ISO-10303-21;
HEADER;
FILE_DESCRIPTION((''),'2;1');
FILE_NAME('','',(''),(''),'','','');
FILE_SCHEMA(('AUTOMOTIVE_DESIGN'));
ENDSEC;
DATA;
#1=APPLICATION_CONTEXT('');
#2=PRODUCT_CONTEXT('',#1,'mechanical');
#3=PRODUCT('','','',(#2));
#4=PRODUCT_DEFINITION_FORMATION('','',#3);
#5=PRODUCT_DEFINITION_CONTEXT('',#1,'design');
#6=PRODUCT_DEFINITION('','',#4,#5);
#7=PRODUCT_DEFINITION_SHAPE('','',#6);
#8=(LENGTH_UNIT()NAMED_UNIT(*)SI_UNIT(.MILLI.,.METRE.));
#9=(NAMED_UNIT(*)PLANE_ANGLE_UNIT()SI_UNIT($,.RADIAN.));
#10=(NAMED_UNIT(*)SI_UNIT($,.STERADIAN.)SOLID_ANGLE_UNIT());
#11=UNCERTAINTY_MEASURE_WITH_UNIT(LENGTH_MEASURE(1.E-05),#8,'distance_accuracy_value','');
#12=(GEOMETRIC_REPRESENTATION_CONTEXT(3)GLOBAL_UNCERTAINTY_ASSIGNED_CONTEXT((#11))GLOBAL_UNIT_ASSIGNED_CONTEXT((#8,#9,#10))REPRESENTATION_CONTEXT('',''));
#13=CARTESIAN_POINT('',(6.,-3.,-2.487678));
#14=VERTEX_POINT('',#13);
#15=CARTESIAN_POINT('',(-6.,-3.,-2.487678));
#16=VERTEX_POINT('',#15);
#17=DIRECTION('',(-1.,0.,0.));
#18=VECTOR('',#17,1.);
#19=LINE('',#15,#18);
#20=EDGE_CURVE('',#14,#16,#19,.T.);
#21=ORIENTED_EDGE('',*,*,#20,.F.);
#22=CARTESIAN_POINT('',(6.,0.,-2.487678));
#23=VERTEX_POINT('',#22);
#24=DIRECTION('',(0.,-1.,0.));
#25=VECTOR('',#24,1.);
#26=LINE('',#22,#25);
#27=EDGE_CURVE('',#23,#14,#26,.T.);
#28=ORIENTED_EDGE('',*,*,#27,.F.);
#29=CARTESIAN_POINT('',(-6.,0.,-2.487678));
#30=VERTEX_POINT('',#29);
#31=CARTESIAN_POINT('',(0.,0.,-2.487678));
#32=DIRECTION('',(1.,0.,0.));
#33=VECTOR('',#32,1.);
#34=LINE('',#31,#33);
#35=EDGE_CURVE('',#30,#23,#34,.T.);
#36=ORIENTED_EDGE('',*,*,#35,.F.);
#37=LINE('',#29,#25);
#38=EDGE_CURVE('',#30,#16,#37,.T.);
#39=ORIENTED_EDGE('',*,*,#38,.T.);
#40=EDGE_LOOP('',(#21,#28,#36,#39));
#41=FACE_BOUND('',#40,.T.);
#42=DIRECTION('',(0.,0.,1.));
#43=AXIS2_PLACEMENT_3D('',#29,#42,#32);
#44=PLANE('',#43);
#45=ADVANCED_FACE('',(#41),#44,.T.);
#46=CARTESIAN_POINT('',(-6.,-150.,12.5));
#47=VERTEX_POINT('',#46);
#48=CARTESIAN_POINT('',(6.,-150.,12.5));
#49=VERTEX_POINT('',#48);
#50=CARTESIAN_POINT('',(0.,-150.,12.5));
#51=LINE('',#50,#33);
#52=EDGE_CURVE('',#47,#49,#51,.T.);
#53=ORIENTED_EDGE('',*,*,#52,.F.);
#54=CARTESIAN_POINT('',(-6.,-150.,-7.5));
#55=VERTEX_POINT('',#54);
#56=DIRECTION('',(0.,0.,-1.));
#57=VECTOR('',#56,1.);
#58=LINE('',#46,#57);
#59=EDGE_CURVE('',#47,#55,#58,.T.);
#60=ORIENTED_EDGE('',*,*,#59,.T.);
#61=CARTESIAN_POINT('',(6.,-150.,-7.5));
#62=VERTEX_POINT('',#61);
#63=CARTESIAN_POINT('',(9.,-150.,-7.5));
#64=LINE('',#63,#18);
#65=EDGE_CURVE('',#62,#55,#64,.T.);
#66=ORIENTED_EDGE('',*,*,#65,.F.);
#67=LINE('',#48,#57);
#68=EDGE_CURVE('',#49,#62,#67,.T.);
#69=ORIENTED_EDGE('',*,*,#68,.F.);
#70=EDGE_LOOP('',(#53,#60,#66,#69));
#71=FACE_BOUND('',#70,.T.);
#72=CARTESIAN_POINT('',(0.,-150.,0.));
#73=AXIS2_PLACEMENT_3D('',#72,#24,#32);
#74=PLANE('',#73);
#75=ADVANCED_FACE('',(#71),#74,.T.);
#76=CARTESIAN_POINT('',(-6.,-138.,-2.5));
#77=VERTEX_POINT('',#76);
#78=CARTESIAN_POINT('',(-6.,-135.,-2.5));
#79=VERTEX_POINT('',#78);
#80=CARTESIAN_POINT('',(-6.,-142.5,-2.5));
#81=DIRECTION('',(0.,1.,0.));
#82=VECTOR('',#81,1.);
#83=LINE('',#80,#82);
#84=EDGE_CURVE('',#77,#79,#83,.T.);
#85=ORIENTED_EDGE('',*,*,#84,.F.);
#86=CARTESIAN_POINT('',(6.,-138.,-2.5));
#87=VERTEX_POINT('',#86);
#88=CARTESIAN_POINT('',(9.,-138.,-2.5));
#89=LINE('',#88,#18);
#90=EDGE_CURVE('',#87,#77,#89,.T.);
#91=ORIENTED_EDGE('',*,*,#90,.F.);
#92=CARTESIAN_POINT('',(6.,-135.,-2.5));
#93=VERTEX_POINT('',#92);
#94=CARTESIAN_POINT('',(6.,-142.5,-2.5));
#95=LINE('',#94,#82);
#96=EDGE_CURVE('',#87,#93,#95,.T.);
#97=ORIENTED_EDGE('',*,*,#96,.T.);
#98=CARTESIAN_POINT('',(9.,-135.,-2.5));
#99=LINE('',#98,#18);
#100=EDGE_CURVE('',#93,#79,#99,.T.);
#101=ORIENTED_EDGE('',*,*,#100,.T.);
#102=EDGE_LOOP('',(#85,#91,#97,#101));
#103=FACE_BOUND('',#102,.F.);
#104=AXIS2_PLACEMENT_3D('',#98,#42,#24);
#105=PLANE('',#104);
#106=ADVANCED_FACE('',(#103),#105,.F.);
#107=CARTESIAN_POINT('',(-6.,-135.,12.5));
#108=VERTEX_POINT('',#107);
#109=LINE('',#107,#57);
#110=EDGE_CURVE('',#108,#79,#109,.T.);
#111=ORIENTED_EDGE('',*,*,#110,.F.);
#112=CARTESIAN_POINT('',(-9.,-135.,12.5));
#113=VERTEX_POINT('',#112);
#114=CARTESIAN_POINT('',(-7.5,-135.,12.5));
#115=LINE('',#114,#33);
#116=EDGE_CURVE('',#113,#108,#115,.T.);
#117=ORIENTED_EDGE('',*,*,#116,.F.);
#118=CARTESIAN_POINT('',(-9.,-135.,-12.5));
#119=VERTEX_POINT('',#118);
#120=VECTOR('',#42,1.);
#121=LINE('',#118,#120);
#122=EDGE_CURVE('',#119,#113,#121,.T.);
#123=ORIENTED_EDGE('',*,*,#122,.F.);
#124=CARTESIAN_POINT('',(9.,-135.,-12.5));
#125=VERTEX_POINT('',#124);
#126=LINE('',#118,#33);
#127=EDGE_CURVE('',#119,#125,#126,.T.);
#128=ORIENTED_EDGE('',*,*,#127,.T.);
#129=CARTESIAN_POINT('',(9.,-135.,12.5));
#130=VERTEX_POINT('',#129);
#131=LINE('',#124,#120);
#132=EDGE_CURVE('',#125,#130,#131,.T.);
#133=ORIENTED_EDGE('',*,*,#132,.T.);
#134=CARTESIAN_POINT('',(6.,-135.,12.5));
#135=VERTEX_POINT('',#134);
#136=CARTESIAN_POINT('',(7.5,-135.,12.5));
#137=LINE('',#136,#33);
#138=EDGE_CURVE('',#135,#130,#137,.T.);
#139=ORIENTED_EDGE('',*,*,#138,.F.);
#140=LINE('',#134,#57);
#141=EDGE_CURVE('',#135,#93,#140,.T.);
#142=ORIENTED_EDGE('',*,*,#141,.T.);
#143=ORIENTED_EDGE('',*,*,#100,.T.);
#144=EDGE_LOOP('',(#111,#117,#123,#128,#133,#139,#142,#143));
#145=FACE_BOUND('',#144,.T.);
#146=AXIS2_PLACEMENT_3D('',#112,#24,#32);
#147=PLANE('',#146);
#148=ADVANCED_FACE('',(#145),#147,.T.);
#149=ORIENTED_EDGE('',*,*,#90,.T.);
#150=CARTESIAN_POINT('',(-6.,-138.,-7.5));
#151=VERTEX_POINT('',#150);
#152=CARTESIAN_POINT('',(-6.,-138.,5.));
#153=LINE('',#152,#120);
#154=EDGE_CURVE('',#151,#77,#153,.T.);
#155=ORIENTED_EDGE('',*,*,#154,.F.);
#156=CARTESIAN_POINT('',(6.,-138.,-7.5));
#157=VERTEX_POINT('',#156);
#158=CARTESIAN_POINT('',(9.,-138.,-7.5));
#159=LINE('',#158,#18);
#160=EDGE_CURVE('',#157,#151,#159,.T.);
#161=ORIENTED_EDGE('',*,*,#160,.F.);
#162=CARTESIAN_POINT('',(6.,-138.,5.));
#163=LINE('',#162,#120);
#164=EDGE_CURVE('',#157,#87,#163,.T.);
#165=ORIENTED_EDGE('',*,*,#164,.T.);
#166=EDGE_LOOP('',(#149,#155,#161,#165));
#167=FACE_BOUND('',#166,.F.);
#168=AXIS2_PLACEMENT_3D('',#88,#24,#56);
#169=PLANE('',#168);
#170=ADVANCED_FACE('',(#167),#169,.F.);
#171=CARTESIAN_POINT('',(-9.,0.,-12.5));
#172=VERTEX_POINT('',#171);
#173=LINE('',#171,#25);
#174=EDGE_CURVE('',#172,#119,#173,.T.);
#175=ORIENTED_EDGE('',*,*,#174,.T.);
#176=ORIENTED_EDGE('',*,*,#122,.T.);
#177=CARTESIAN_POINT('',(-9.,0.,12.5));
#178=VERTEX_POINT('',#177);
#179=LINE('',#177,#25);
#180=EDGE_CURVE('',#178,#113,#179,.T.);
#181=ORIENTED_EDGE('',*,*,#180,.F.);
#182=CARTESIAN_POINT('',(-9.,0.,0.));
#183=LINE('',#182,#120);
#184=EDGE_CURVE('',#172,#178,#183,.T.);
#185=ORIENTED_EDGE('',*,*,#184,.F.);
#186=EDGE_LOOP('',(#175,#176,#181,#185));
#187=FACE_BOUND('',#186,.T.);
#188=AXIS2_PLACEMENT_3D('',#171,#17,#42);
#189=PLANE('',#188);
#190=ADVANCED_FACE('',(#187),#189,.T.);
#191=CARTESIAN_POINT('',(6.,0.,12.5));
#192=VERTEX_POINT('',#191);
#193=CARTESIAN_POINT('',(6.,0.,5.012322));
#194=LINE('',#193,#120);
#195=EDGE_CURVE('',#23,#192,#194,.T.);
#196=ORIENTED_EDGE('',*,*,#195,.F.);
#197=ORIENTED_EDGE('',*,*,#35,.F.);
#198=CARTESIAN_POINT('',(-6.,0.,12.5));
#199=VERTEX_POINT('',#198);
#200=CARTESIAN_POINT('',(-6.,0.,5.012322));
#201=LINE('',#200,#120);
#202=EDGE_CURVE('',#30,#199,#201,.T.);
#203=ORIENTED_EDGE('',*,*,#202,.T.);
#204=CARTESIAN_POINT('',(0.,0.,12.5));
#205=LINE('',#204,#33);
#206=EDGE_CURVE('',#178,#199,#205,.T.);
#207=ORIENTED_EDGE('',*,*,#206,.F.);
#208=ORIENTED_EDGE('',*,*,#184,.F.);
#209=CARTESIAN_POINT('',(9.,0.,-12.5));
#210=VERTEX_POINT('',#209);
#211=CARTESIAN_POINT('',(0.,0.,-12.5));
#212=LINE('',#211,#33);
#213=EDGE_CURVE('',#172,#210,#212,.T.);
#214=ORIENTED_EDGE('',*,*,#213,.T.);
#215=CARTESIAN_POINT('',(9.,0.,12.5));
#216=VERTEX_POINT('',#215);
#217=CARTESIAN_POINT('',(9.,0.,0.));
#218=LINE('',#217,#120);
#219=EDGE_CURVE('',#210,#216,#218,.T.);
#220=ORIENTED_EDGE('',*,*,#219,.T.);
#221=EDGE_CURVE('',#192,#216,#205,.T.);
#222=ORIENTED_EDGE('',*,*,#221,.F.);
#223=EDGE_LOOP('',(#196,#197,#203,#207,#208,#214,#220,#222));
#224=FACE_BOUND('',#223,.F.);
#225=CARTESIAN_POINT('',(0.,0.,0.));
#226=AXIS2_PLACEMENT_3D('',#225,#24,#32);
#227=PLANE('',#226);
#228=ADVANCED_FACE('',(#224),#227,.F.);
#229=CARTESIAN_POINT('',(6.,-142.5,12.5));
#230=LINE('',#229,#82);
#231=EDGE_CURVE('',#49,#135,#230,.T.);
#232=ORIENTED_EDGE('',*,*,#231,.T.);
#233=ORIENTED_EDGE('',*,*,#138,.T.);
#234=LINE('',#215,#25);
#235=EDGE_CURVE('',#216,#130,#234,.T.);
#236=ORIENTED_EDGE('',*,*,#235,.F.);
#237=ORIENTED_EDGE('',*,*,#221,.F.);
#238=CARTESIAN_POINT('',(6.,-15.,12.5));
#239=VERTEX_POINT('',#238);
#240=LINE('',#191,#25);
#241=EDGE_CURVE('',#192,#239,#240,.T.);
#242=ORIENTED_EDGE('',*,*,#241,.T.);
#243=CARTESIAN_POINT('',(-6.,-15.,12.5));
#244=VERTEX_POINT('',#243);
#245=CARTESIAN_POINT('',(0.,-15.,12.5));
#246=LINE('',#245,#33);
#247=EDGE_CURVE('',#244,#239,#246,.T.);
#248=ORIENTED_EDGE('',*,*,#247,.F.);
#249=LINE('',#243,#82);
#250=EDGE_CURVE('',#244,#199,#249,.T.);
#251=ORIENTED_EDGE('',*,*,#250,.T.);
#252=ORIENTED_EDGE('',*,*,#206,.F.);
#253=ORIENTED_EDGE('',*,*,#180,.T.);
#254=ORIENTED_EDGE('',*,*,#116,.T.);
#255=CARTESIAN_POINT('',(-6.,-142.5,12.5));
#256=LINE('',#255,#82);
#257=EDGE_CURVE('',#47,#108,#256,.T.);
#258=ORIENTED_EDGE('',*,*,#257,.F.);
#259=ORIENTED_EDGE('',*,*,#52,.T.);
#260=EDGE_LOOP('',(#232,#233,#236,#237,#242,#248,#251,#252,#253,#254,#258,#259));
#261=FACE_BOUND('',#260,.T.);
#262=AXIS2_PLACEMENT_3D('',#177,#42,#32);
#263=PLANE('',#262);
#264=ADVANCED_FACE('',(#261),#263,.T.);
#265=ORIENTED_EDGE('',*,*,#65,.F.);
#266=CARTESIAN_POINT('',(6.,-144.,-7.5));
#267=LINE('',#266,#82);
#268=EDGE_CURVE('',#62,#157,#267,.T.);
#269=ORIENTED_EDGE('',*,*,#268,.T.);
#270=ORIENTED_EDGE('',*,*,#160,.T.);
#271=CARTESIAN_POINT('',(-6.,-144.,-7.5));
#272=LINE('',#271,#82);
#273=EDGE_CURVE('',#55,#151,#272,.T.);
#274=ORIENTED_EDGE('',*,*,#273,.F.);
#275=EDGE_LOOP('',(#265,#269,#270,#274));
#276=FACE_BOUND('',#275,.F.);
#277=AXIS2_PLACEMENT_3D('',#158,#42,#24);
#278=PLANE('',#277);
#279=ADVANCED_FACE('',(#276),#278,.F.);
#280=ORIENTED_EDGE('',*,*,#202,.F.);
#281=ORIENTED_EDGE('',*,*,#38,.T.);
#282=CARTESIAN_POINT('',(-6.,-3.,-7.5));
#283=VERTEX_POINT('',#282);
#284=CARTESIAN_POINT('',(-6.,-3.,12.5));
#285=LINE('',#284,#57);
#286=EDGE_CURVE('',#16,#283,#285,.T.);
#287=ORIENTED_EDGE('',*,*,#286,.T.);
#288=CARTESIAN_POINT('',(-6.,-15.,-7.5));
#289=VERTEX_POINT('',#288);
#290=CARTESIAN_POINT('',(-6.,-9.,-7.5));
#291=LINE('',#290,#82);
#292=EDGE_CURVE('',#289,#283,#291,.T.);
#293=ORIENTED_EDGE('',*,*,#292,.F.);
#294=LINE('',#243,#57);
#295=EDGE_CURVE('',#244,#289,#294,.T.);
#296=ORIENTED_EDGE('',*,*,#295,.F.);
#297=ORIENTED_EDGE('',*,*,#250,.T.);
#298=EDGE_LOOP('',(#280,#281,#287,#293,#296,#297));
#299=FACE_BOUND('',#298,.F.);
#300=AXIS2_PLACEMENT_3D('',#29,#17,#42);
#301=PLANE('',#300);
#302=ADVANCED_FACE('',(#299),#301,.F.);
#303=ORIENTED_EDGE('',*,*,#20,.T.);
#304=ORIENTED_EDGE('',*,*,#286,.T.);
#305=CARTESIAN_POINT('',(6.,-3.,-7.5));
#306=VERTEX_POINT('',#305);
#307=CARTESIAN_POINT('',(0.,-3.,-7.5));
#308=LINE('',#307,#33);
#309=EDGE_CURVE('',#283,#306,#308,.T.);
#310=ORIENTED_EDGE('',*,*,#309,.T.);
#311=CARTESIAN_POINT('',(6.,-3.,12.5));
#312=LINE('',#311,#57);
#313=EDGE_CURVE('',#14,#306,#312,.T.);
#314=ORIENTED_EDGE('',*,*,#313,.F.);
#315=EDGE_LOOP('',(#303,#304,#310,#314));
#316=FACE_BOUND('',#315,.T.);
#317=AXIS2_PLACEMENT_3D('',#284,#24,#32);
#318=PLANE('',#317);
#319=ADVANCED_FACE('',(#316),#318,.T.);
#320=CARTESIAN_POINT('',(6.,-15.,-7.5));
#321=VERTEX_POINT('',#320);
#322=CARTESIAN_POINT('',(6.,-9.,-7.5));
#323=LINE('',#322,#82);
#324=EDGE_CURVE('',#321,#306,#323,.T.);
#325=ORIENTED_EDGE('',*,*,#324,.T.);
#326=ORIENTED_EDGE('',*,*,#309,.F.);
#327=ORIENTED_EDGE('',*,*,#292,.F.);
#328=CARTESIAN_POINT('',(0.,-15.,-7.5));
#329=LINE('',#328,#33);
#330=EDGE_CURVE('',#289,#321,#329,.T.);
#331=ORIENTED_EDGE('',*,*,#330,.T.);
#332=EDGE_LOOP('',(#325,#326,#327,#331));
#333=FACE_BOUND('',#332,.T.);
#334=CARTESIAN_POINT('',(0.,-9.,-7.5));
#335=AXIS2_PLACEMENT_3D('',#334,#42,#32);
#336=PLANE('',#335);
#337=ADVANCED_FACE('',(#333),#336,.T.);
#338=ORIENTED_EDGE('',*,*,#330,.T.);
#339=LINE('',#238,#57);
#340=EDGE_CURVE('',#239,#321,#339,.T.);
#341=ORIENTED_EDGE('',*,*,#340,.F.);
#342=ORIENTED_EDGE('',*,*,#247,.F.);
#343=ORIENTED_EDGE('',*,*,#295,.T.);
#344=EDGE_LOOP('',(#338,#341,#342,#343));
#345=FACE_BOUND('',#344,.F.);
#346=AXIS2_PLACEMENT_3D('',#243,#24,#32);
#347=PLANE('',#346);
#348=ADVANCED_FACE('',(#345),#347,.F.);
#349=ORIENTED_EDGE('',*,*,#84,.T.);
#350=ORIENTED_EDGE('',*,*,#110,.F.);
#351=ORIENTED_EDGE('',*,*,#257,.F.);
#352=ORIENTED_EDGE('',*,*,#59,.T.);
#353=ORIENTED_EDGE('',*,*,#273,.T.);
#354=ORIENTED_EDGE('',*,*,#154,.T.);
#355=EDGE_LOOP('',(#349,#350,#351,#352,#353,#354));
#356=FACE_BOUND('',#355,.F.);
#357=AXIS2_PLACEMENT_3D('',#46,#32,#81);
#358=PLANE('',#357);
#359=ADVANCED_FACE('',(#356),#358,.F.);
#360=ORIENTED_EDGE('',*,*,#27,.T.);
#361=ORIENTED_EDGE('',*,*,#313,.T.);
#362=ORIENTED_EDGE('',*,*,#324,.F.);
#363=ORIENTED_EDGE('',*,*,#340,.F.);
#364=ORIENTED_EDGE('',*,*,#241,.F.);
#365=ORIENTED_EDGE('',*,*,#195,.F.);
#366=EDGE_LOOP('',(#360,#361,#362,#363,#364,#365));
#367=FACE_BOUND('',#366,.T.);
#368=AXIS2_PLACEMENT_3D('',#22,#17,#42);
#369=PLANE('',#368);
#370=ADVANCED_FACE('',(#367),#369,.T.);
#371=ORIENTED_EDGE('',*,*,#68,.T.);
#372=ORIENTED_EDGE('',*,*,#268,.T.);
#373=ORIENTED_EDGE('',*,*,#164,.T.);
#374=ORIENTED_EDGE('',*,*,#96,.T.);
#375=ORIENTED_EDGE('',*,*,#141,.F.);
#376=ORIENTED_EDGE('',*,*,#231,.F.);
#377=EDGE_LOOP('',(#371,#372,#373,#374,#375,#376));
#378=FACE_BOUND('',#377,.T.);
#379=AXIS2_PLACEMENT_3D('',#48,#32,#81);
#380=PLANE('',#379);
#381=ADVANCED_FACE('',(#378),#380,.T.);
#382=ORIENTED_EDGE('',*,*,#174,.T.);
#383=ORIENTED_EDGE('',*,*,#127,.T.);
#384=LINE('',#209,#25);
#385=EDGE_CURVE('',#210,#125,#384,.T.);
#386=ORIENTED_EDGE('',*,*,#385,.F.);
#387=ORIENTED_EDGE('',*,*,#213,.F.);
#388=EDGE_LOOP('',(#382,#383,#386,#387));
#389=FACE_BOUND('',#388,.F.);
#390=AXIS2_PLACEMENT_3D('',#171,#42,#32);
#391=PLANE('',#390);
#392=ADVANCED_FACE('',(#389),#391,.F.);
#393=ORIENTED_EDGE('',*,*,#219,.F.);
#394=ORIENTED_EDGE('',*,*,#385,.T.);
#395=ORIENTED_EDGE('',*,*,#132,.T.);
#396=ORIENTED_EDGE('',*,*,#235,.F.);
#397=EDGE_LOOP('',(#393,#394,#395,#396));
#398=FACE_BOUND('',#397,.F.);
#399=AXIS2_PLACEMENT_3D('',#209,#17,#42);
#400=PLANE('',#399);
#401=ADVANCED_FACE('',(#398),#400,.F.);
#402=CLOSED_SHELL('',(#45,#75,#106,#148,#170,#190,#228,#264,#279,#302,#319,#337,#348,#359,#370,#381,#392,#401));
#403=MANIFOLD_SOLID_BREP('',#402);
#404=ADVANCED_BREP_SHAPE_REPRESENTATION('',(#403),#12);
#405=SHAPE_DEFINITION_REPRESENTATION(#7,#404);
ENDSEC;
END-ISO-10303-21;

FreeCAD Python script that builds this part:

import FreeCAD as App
import Part
import Sketcher

V = App.Vector
Q = App.Units.Quantity


def add_polygon(sketch, points):
    """Adds a closed chain of lines whose ends are joined by coincident constraints."""
    first, n = sketch.GeometryCount, len(points)
    for a, b in zip(points, points[1:] + points[:1]):
        sketch.addGeometry(Part.LineSegment(App.Vector(*a, 0), App.Vector(*b, 0)), False)
    for i in range(n):
        sketch.addConstraint(Sketcher.Constraint("Coincident", first + i, 2, first + (i + 1) % n, 1))

doc = App.newDocument("Part")
body = doc.addObject("PartDesign::Body", "Body")

# Sketch on XZ plane
sketch1 = doc.addObject("Sketcher::SketchObject", "Sketch")
body.addObject(sketch1)
sketch1.AttachmentSupport = (doc.XZ_Plane, [""])
sketch1.MapMode = "FlatFace"
add_polygon(sketch1, [(-9, 12), (-9, -12), (9, -12), (9, 12)])  # lines 0-3
sketch1.addConstraint([
    Sketcher.Constraint("Vertical", 0),
    Sketcher.Constraint("Horizontal", 1),
    Sketcher.Constraint("Vertical", 2),
    Sketcher.Constraint("Horizontal", 3),
    Sketcher.Constraint("Symmetric", 0, 2, 2, 2, -1, 1),
    Sketcher.Constraint("DistanceX", 1, 1, 1, 2, Q("18 mm")),
    Sketcher.Constraint("DistanceY", 0, 2, 0, 1, Q("25 mm")),
])
pad1 = doc.addObject("PartDesign::Pad", "Pad")
body.addObject(pad1)
pad1.Profile = sketch1
pad1.Length = 150

# Sketch on YZ plane
sketch2 = doc.addObject("Sketcher::SketchObject", "Sketch001")
body.addObject(sketch2)
sketch2.AttachmentSupport = (doc.YZ_Plane, [""])
sketch2.MapMode = "FlatFace"
sketch2.AttachmentOffset = App.Placement(V(0, 0, 9), App.Rotation())
add_polygon(sketch2, [(-150, -12.5), (-135, -12.5), (-135, -2.5), (-138, -2.5), (-138, -7.5), (-150, -7.5)])  # lines 0-5
sketch2.addConstraint([
    Sketcher.Constraint("Horizontal", 0),
    Sketcher.Constraint("Vertical", 1),
    Sketcher.Constraint("Horizontal", 2),
    Sketcher.Constraint("Vertical", 3),
    Sketcher.Constraint("Horizontal", 4),
    Sketcher.Constraint("Vertical", 5),
    Sketcher.Constraint("Equal", 3, 5),
    Sketcher.Constraint("DistanceX", 0, 1, 0, 2, Q("15 mm")),
    Sketcher.Constraint("DistanceX", 2, 2, 2, 1, Q("3 mm")),
    Sketcher.Constraint("DistanceY", 1, 1, 1, 2, Q("10 mm")),
    Sketcher.Constraint("DistanceX", 0, 2, -1, 1, Q("135 mm")),
    Sketcher.Constraint("DistanceY", 0, 2, -1, 1, Q("12.5 mm")),
])
pocket1 = doc.addObject("PartDesign::Pocket", "Pocket")
body.addObject(pocket1)
pocket1.Profile = sketch2
pocket1.Length = 25

# Sketch on XY plane
sketch3 = doc.addObject("Sketcher::SketchObject", "Sketch002")
body.addObject(sketch3)
sketch3.AttachmentSupport = (doc.XY_Plane, [""])
sketch3.MapMode = "FlatFace"
sketch3.AttachmentOffset = App.Placement(V(0, 0, 12.5), App.Rotation())
add_polygon(sketch3, [(6, -135), (6, -150), (9, -150), (9, -135)])  # lines 0-3
add_polygon(sketch3, [(-9, -135), (-9, -150), (-6, -150), (-6, -135)])  # lines 4-7
sketch3.addConstraint([
    Sketcher.Constraint("Vertical", 0),
    Sketcher.Constraint("Horizontal", 1),
    Sketcher.Constraint("Vertical", 2),
    Sketcher.Constraint("Horizontal", 3),
    Sketcher.Constraint("Vertical", 4),
    Sketcher.Constraint("Horizontal", 5),
    Sketcher.Constraint("Vertical", 6),
    Sketcher.Constraint("Horizontal", 7),
    Sketcher.Constraint("Symmetric", 1, 2, 4, 2, -2),
    Sketcher.Constraint("Symmetric", 3, 2, 6, 2, -2),
    Sketcher.Constraint("DistanceX", 1, 1, 1, 2, Q("3 mm")),
    Sketcher.Constraint("DistanceY", 0, 2, 0, 1, Q("15 mm")),
    Sketcher.Constraint("DistanceX", -1, 1, 0, 2, Q("6 mm")),
    Sketcher.Constraint("DistanceY", 0, 2, -1, 1, Q("150 mm")),
])
pocket2 = doc.addObject("PartDesign::Pocket", "Pocket001")
body.addObject(pocket2)
pocket2.Profile = sketch3
pocket2.Length = 25

# Sketch on XY plane
sketch4 = doc.addObject("Sketcher::SketchObject", "Sketch003")
body.addObject(sketch4)
sketch4.AttachmentSupport = (doc.XY_Plane, [""])
sketch4.MapMode = "FlatFace"
sketch4.AttachmentOffset = App.Placement(V(0, 0, 12.5), App.Rotation())
add_polygon(sketch4, [(-6, -3), (-6, -15), (6, -15), (6, -3)])  # lines 0-3
sketch4.addConstraint([
    Sketcher.Constraint("Vertical", 0),
    Sketcher.Constraint("Horizontal", 1),
    Sketcher.Constraint("Vertical", 2),
    Sketcher.Constraint("Horizontal", 3),
    Sketcher.Constraint("Equal", 3, 0),
    Sketcher.Constraint("DistanceX", 1, 1, 1, 2, Q("12 mm")),
    Sketcher.Constraint("DistanceX", 0, 2, -1, 1, Q("6 mm")),
    Sketcher.Constraint("DistanceY", 0, 2, -1, 1, Q("15 mm")),
])
pocket3 = doc.addObject("PartDesign::Pocket", "Pocket002")
body.addObject(pocket3)
pocket3.Profile = sketch4
pocket3.Length = 20

# Sketch on XZ plane
sketch5 = doc.addObject("Sketcher::SketchObject", "Sketch004")
body.addObject(sketch5)
sketch5.AttachmentSupport = (doc.XZ_Plane, [""])
sketch5.MapMode = "FlatFace"
add_polygon(sketch5, [(-6, 13), (-6, -2), (6, -2), (6, 13)])  # lines 0-3
sketch5.addConstraint([
    Sketcher.Constraint("Vertical", 0),
    Sketcher.Constraint("Horizontal", 1),
    Sketcher.Constraint("Vertical", 2),
    Sketcher.Constraint("Horizontal", 3),
    Sketcher.Constraint("DistanceX", 1, 1, 1, 2, Q("12 mm")),
    Sketcher.Constraint("DistanceY", 0, 2, 0, 1, Q("15 mm")),
    Sketcher.Constraint("DistanceX", 0, 2, -1, 1, Q("6 mm")),
    Sketcher.Constraint("DistanceY", -1, 1, 2, 2, Q("12.512322 mm")),
])
pocket4 = doc.addObject("PartDesign::Pocket", "Pocket003")
body.addObject(pocket4)
pocket4.Profile = sketch5
pocket4.Length = 5
pocket4.Reversed = True

doc.recompute()
